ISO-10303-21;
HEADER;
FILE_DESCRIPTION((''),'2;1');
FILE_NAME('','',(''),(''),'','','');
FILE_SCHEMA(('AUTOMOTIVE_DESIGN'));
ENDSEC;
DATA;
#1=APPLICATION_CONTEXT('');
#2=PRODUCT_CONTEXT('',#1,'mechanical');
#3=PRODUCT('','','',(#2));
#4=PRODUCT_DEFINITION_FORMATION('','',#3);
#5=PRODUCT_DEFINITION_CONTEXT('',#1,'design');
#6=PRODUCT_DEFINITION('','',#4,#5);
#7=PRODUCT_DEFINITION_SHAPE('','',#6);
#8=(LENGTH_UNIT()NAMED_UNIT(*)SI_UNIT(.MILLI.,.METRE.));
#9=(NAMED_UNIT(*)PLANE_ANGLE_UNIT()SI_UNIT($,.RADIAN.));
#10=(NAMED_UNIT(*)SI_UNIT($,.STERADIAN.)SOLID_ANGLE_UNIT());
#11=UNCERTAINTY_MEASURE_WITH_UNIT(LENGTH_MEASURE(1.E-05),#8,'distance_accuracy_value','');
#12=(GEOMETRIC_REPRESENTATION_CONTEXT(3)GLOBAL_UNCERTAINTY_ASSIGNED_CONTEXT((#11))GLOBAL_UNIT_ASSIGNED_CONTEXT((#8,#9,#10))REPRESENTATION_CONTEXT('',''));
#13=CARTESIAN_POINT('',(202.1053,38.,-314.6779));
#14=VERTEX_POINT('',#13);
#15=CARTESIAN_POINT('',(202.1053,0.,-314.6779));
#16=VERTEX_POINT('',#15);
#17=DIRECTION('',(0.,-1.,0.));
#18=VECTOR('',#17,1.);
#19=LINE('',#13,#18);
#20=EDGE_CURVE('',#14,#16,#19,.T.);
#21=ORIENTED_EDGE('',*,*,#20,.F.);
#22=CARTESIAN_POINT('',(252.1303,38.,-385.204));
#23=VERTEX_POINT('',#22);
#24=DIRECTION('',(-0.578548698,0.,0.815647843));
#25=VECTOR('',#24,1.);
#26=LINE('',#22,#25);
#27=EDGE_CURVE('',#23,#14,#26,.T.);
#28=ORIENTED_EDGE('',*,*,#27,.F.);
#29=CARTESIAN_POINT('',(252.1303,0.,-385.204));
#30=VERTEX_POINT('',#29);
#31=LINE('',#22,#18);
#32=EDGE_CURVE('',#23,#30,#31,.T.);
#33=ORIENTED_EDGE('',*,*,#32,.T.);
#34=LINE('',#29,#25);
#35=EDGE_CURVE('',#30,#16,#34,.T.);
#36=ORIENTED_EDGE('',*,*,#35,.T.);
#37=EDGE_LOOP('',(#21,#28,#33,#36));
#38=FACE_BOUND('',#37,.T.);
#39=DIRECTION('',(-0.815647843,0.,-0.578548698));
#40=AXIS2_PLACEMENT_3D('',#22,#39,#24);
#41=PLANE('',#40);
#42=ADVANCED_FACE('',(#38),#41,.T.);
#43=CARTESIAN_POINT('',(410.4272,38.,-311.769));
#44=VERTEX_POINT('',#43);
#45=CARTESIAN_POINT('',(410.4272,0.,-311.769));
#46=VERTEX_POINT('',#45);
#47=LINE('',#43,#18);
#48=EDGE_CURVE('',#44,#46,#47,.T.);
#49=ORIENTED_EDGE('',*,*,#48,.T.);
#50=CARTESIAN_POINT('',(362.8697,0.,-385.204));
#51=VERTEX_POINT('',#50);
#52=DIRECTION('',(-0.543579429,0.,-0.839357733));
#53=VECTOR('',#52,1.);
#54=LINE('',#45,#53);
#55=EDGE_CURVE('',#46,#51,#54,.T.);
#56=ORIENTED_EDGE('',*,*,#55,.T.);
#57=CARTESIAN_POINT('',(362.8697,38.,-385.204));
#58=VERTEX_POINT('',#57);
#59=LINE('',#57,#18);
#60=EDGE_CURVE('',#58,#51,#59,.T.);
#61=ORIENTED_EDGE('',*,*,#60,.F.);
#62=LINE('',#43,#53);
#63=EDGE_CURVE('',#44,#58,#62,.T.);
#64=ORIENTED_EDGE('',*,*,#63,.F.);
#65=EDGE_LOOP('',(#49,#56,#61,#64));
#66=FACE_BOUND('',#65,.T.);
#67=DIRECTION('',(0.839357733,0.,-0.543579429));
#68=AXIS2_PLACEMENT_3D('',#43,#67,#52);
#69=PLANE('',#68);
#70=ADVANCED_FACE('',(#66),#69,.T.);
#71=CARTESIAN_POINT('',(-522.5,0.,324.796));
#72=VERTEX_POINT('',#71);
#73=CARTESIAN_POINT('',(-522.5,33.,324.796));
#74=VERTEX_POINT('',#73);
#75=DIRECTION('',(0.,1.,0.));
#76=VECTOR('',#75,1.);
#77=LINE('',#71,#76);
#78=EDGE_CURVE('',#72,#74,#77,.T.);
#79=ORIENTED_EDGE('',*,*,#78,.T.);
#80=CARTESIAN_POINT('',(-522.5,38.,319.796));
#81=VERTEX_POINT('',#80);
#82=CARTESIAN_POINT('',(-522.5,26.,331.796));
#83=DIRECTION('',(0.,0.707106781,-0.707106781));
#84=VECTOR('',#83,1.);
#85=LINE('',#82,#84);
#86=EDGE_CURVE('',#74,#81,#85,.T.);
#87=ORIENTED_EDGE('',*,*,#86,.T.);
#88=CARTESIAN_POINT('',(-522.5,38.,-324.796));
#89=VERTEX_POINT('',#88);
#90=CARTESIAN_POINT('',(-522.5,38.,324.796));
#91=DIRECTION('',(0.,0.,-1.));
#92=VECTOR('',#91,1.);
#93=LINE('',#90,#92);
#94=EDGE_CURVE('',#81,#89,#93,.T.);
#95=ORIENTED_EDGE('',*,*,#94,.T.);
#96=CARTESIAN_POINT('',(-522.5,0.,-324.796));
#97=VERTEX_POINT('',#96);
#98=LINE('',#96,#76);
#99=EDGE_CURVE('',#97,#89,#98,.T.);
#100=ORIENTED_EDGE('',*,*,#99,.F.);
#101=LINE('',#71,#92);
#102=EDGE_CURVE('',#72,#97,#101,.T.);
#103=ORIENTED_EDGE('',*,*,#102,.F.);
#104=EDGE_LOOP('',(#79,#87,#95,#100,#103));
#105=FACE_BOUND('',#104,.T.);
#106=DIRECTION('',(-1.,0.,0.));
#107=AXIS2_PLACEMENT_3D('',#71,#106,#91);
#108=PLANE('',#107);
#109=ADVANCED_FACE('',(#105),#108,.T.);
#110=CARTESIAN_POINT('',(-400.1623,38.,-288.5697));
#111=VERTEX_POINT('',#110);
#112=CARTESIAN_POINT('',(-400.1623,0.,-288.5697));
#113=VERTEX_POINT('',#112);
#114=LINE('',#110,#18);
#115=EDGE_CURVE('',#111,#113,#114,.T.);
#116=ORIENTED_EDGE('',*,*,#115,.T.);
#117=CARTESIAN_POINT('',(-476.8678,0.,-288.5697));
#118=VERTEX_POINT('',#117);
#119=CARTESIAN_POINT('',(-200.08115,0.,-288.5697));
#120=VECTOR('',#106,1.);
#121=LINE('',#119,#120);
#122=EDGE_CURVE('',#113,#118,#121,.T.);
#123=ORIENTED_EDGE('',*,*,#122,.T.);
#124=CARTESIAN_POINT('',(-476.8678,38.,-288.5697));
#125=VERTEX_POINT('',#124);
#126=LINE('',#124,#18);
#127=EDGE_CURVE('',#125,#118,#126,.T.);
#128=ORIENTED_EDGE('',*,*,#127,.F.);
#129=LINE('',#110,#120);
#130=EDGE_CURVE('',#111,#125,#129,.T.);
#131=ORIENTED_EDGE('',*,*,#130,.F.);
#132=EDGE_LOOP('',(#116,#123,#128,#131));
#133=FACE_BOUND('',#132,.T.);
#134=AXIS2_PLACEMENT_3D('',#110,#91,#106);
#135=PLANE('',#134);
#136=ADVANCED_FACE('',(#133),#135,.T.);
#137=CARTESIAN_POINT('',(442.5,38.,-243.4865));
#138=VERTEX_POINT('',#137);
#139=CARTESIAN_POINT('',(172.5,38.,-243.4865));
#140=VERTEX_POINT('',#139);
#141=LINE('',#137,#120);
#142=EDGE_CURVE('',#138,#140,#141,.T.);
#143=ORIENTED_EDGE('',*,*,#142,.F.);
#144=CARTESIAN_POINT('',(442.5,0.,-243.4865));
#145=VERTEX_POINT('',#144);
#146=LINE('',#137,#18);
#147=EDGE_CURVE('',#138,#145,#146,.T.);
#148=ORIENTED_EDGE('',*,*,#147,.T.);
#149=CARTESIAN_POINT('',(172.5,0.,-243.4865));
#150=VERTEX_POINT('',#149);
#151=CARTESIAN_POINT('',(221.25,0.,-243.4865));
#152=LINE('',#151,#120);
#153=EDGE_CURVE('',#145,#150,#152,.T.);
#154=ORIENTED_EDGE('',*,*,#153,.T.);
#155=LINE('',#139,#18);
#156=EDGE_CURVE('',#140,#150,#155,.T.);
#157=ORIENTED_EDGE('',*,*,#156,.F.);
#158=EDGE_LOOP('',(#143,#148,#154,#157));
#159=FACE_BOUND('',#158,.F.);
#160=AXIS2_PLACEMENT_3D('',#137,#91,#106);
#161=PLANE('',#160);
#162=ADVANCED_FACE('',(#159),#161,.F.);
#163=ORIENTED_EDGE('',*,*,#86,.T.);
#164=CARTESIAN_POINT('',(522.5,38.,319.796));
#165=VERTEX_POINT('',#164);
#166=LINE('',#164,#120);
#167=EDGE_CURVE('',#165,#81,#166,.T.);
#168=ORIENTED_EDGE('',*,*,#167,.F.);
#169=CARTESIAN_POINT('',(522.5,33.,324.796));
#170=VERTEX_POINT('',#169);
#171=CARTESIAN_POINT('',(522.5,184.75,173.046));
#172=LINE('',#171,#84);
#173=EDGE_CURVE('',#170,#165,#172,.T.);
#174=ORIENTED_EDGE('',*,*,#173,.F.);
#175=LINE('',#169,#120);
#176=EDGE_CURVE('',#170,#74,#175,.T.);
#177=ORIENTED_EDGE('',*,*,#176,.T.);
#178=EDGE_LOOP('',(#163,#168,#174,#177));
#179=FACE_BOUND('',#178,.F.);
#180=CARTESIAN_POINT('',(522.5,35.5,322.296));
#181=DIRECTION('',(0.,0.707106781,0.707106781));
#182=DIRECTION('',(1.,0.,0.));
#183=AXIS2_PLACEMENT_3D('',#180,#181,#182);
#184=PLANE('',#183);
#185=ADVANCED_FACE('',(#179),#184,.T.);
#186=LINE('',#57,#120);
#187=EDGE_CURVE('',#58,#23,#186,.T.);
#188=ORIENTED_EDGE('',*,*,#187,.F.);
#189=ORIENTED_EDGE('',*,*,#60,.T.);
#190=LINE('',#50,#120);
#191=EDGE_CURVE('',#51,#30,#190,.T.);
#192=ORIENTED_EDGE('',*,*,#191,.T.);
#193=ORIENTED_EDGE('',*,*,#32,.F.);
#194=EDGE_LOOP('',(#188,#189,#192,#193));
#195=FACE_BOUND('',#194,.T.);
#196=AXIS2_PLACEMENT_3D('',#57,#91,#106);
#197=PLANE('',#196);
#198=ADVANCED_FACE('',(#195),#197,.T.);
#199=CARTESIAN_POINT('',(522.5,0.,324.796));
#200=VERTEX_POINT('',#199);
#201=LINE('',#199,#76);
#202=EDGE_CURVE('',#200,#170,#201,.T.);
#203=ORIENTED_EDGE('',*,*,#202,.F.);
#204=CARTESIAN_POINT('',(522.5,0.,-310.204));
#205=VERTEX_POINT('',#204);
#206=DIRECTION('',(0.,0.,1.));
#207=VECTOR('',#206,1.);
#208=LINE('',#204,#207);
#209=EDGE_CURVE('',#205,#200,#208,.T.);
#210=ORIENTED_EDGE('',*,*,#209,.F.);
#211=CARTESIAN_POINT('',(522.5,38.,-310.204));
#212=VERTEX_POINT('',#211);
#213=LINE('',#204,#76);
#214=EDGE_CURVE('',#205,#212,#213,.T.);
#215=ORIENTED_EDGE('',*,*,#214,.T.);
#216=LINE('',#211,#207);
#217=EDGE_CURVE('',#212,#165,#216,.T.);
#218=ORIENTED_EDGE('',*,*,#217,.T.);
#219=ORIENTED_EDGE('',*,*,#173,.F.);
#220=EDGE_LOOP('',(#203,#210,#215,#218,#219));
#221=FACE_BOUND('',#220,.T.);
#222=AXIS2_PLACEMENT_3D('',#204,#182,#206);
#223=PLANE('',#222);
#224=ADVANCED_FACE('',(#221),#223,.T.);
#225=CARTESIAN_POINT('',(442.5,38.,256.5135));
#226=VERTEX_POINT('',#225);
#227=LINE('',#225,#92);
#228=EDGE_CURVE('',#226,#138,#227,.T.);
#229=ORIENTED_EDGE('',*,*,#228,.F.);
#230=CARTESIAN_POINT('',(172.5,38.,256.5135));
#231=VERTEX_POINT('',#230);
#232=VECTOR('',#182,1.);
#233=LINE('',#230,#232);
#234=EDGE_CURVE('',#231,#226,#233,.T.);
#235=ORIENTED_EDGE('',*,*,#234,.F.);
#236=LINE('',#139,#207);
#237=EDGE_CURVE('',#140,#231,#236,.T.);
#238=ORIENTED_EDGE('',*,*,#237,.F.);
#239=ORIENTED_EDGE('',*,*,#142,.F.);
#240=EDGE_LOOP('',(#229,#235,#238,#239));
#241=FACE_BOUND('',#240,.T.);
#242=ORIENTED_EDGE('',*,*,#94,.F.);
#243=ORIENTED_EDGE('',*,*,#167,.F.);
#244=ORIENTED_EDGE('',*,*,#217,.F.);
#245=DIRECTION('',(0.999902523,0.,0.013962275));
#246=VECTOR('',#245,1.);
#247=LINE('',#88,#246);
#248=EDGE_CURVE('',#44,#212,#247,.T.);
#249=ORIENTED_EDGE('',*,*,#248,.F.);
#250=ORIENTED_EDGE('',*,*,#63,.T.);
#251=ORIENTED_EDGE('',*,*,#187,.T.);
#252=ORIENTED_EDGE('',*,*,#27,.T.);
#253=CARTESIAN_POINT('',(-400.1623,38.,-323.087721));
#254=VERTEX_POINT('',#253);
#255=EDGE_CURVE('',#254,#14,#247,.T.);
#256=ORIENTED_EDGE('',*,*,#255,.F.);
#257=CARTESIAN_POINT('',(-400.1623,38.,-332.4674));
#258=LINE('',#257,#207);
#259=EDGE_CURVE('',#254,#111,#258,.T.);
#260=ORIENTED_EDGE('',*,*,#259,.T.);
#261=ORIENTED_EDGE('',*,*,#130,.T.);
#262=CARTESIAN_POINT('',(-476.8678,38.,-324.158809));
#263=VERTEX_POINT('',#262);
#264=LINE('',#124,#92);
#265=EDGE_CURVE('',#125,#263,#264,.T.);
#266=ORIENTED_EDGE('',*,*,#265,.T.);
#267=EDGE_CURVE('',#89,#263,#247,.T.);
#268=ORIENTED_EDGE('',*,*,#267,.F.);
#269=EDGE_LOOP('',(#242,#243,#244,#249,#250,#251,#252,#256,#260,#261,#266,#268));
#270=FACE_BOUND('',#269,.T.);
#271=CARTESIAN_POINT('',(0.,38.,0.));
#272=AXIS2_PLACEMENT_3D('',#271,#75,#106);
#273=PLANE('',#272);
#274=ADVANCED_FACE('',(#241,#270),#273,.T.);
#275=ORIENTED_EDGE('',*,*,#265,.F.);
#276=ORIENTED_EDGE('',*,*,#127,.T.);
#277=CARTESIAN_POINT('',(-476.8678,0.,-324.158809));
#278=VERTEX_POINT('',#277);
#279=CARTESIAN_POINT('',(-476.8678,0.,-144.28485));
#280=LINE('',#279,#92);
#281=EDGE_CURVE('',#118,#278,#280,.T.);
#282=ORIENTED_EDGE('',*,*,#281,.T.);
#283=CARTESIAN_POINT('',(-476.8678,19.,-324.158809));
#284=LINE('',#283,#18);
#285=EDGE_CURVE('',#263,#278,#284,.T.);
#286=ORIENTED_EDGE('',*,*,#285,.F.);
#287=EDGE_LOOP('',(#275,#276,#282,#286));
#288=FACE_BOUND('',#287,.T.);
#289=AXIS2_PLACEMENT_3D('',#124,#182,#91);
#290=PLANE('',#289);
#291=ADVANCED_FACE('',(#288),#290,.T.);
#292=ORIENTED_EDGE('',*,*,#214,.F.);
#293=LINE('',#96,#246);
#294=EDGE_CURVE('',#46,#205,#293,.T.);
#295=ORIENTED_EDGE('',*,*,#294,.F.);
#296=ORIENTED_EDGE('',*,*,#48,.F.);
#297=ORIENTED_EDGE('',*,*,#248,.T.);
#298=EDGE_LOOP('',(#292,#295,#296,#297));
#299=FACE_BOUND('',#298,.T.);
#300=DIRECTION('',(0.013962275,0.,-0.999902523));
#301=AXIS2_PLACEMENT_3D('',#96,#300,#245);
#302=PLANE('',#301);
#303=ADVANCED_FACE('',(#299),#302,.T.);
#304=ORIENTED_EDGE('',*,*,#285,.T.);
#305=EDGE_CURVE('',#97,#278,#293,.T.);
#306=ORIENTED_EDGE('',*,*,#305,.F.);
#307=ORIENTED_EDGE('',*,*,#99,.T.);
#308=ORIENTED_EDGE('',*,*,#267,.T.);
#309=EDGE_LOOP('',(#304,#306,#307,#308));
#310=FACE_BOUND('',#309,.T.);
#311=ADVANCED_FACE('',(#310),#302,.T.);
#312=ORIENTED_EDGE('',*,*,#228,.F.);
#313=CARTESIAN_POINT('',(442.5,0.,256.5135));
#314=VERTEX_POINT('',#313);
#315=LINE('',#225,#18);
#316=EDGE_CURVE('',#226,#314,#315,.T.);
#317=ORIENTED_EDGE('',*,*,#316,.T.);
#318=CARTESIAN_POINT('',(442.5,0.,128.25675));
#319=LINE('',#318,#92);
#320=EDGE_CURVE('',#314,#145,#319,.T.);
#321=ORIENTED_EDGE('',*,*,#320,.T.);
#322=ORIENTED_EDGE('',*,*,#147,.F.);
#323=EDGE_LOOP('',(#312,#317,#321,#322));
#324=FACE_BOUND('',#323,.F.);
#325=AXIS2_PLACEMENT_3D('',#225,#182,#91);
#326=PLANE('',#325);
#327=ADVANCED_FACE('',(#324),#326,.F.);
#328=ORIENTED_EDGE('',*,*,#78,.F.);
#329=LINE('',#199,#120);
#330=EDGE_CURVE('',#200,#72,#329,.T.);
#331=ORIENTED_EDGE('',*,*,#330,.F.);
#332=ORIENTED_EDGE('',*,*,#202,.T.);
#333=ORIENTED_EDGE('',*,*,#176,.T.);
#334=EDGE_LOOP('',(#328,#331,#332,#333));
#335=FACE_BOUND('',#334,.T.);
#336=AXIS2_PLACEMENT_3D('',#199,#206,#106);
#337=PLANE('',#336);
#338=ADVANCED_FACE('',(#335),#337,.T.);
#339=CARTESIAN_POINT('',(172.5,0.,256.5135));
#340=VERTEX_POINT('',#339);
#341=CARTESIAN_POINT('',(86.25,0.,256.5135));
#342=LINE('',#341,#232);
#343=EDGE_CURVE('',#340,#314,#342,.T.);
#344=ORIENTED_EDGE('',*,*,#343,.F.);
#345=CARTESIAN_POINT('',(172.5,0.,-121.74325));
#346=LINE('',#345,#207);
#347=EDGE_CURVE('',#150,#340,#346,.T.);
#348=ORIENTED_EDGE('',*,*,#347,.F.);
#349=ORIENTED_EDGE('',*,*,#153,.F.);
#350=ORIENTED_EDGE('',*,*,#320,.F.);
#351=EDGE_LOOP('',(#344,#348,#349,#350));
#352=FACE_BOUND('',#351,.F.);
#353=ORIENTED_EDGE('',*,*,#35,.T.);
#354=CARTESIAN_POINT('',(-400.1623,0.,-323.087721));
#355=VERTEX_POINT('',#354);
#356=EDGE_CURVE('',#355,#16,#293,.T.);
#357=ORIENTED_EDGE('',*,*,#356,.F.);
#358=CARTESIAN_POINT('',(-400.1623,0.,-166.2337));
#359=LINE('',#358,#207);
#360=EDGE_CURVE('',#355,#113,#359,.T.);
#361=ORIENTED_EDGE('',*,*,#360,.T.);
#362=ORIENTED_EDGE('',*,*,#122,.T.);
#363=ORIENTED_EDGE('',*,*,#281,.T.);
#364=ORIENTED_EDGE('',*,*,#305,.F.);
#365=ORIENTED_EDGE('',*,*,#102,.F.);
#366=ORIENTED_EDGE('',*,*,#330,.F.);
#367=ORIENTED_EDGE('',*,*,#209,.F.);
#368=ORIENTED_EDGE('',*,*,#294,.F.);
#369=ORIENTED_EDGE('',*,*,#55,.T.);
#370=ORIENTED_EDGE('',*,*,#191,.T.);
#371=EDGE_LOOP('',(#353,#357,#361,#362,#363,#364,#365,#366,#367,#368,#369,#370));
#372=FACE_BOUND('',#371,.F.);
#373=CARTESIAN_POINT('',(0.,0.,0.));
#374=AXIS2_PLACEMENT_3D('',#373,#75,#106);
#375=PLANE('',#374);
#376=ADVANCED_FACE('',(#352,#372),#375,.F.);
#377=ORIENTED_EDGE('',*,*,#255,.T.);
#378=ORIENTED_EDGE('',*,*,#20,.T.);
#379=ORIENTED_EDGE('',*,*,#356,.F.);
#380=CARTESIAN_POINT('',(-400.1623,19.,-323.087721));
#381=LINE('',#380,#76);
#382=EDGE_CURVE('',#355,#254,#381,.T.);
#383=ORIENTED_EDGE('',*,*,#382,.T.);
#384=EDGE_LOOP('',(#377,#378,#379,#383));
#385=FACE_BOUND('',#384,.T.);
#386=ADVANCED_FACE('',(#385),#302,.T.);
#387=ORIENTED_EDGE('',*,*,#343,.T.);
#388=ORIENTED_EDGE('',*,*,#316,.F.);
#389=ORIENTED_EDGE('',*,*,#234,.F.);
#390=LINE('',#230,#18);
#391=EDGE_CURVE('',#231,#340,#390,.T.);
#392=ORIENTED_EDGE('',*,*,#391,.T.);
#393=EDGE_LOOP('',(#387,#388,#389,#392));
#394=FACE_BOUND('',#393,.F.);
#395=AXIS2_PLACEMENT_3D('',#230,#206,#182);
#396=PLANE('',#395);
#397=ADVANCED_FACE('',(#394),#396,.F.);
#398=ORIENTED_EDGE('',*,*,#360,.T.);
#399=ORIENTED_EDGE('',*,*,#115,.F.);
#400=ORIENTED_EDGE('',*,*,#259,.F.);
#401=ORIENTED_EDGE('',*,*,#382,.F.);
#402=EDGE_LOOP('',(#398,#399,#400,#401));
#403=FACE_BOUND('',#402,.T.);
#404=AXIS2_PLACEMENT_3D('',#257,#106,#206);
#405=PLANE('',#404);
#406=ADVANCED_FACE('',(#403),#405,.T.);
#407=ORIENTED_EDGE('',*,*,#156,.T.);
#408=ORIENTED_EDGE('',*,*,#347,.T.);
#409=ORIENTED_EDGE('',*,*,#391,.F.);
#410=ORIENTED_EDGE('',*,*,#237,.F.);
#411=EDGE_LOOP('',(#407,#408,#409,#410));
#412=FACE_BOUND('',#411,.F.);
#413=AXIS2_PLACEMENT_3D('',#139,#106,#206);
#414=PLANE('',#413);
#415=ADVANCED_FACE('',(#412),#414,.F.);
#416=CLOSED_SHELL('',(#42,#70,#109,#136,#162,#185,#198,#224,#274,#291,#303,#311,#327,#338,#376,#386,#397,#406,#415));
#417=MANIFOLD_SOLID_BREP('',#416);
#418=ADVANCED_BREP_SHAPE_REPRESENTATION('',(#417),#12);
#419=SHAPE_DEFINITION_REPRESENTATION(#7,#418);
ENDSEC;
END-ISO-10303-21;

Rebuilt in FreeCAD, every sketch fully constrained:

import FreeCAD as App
import Part
import Sketcher

V = App.Vector
Q = App.Units.Quantity


def edges_at(feature, points):
    """Names of the edges that pass closest to the given points."""
    edges = feature.Shape.Edges
    near = lambda p: min(range(len(edges)), key=lambda i: edges[i].distToShape(Part.Vertex(*p))[0])
    return sorted({f"Edge{near(p) + 1}" for p in points})


def add_polygon(sketch, points):
    """Adds a closed chain of lines whose ends are joined by coincident constraints."""
    first, n = sketch.GeometryCount, len(points)
    for a, b in zip(points, points[1:] + points[:1]):
        sketch.addGeometry(Part.LineSegment(App.Vector(*a, 0), App.Vector(*b, 0)), False)
    for i in range(n):
        sketch.addConstraint(Sketcher.Constraint("Coincident", first + i, 2, first + (i + 1) % n, 1))

doc = App.newDocument("Part")
body = doc.addObject("PartDesign::Body", "Body")

sketch1 = body.newObject("Sketcher::SketchObject", "Sketch")
sketch1.AttachmentSupport = (doc.getObject("XZ_Plane"), [""])
sketch1.MapMode = "FlatFace"
add_polygon(sketch1, [(522.5, -310.204), (-522.5, -324.796), (-522.5, 324.796), (522.5, 324.796)])
sketch1.addConstraint([
    Sketcher.Constraint("Vertical", 1),
    Sketcher.Constraint("Horizontal", 2),
    Sketcher.Constraint("Vertical", 3),
    Sketcher.Constraint("Symmetric", 0, 2, 2, 2, -1, 1),
    Sketcher.Constraint("DistanceX", 2, 1, 2, 2, Q("1045 mm")),
    Sketcher.Constraint("DistanceY", 3, 2, 3, 1, Q("635 mm")),
    Sketcher.Constraint("Angle", 0, Q("-179.2 deg")),
])
pad1 = body.newObject("PartDesign::Pad", "Pad")
pad1.Profile = sketch1
pad1.Length = 38
pad1.Reversed = True
doc.recompute()

chamfer = body.newObject("PartDesign::Chamfer", "Chamfer")
chamfer.Base = (pad1, edges_at(pad1, [(0, 38, 324.796)]))
chamfer.Size = 5

sketch2 = body.newObject("Sketcher::SketchObject", "Sketch001")
sketch2.AttachmentSupport = (doc.getObject("XZ_Plane"), [""])
sketch2.MapMode = "FlatFace"
sketch2.AttachmentOffset = App.Placement(V(0, 0, -38), App.Rotation())
add_polygon(sketch2, [(202.1053, -314.677875), (410.4272, -311.769), (362.8697, -385.204), (252.1303, -385.204)])
sketch2.addConstraint([
    Sketcher.Constraint("Horizontal", 2),
    Sketcher.Constraint("DistanceX", 2, 2, 2, 1, Q("110.7394 mm")),
    Sketcher.Constraint("DistanceY", 0, 2, -1, 1, Q("311.769 mm")),
    Sketcher.Constraint("DistanceY", 1, 2, -1, 1, Q("385.204 mm")),
    Sketcher.Constraint("DistanceY", 3, 2, -1, 1, Q("314.678 mm")),
    Sketcher.Constraint("DistanceX", 2, 2, 0, 2, Q("158.297 mm")),
    Sketcher.Constraint("DistanceX", 3, 2, 2, 2, Q("50.025 mm")),
    Sketcher.Constraint("DistanceX", -1, 1, 0, 2, Q("410.4272 mm")),
])
pad2 = body.newObject("PartDesign::Pad", "Pad001")
pad2.Profile = sketch2
pad2.Length = 38

sketch3 = body.newObject("Sketcher::SketchObject", "Sketch002")
sketch3.AttachmentSupport = (doc.getObject("XZ_Plane"), [""])
sketch3.MapMode = "FlatFace"
sketch3.AttachmentOffset = App.Placement(V(0, 0, -38), App.Rotation())
add_polygon(sketch3, [(172.5, -243.4865), (172.5, 256.5135), (442.5, 256.5135), (442.5, -243.4865)])
sketch3.addConstraint([
    Sketcher.Constraint("Vertical", 0),
    Sketcher.Constraint("Horizontal", 1),
    Sketcher.Constraint("Vertical", 2),
    Sketcher.Constraint("Horizontal", 3),
    Sketcher.Constraint("DistanceX", 1, 1, 1, 2, Q("270 mm")),
    Sketcher.Constraint("DistanceY", 0, 1, 0, 2, Q("500 mm")),
    Sketcher.Constraint("DistanceX", -1, 1, 0, 2, Q("172.5 mm")),
    Sketcher.Constraint("DistanceY", -1, 1, 0, 2, Q("256.5135 mm")),
])
pocket1 = body.newObject("PartDesign::Pocket", "Pocket")
pocket1.Profile = sketch3
pocket1.Type = "ThroughAll"
pocket1.Reversed = True

sketch4 = body.newObject("Sketcher::SketchObject", "Sketch003")
sketch4.AttachmentSupport = (doc.getObject("XZ_Plane"), [""])
sketch4.MapMode = "FlatFace"
sketch4.AttachmentOffset = App.Placement(V(0, 0, -38), App.Rotation())
add_polygon(sketch4, [(-476.8678, -288.5697), (-400.1623, -288.5697), (-400.1623, -332.4674), (-476.8678, -332.4674)])
sketch4.addConstraint([
    Sketcher.Constraint("Horizontal", 0),
    Sketcher.Constraint("Vertical", 1),
    Sketcher.Constraint("Horizontal", 2),
    Sketcher.Constraint("Vertical", 3),
    Sketcher.Constraint("DistanceX", 0, 1, 0, 2, Q("76.7055 mm")),
    Sketcher.Constraint("DistanceY", 1, 2, 1, 1, Q("43.8977 mm")),
    Sketcher.Constraint("DistanceX", 0, 2, -1, 1, Q("400.1623 mm")),
    Sketcher.Constraint("DistanceY", 0, 2, -1, 1, Q("288.5697 mm")),
])
pocket2 = body.newObject("PartDesign::Pocket", "Pocket001")
pocket2.Profile = sketch4
pocket2.Type = "ThroughAll"
pocket2.Reversed = True

doc.recompute()
